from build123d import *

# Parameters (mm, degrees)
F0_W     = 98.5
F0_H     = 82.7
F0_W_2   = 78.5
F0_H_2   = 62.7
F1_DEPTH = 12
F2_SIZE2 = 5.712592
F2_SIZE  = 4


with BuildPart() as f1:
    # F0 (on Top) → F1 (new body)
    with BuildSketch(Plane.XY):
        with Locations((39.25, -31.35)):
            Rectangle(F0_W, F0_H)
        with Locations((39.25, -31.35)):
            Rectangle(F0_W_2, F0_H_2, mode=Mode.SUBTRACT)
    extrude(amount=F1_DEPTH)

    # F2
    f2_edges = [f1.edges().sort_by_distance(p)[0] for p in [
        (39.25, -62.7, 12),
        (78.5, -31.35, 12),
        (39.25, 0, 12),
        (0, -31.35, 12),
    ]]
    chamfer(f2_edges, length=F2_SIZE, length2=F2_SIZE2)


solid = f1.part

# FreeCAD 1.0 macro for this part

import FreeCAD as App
import Part
import Sketcher

V = App.Vector


def edges_at(feature, points):
    """Names of the edges that pass closest to the given points."""
    edges = feature.Shape.Edges
    near = lambda p: min(range(len(edges)), key=lambda i: edges[i].distToShape(Part.Vertex(*p))[0])
    return sorted({f"Edge{near(p) + 1}" for p in points})


def add_polygon(sketch, points):
    """Adds a closed chain of lines whose ends are joined by coincident constraints."""
    first, n = sketch.GeometryCount, len(points)
    for a, b in zip(points, points[1:] + points[:1]):
        sketch.addGeometry(Part.LineSegment(App.Vector(*a, 0), App.Vector(*b, 0)), False)
    for i in range(n):
        sketch.addConstraint(Sketcher.Constraint("Coincident", first + i, 2, first + (i + 1) % n, 1))

doc = App.newDocument("Part")
body = doc.addObject("PartDesign::Body", "Body")

# Sketch on XY plane
sketch1 = doc.addObject("Sketcher::SketchObject", "Sketch")
body.addObject(sketch1)
sketch1.AttachmentSupport = (doc.XY_Plane, [""])
sketch1.MapMode = "FlatFace"
add_polygon(sketch1, [(-10, 10), (-10, -73), (88, -73), (88, 10)])  # lines 0-3
add_polygon(sketch1, [(78, -63), (0, -63), (0, 0), (78, 0)])  # lines 4-7
sketch1.addConstraint(Sketcher.Constraint("Vertical", 0))
sketch1.addConstraint(Sketcher.Constraint("Horizontal", 1))
sketch1.addConstraint(Sketcher.Constraint("Vertical", 2))
sketch1.addConstraint(Sketcher.Constraint("Horizontal", 3))
sketch1.addConstraint(Sketcher.Constraint("Horizontal", 4))
sketch1.addConstraint(Sketcher.Constraint("Vertical", 5))
sketch1.addConstraint(Sketcher.Constraint("Horizontal", 6))
sketch1.addConstraint(Sketcher.Constraint("Vertical", 7))
sketch1.addConstraint(Sketcher.Constraint("Coincident", 5, 2, -1, 1))
sketch1.addConstraint(Sketcher.Constraint("DistanceX", 1, 1, 1, 2, 98.5))
sketch1.addConstraint(Sketcher.Constraint("DistanceX", 4, 2, 4, 1, 78.5))
sketch1.addConstraint(Sketcher.Constraint("DistanceY", 0, 2, 0, 1, 82.7))
sketch1.addConstraint(Sketcher.Constraint("DistanceY", 5, 1, 5, 2, 62.7))
sketch1.addConstraint(Sketcher.Constraint("DistanceX", 0, 2, -1, 1, 10.0))
sketch1.addConstraint(Sketcher.Constraint("DistanceY", -1, 1, 2, 2, 10.0))
pad1 = doc.addObject("PartDesign::Pad", "Pad")
body.addObject(pad1)
pad1.Profile = sketch1
pad1.Length = 12
doc.recompute()

chamfer = doc.addObject("PartDesign::Chamfer", "Chamfer")
body.addObject(chamfer)
chamfer.Base = (pad1, edges_at(pad1, [
    (39.25, -62.7, 12),
    (78.5, -31.35, 12),
    (39.25, 0, 12),
    (0, -31.35, 12),
]))
chamfer.ChamferType = "Two distances"
chamfer.Size = 4
chamfer.Size2 = 5.712592

doc.recompute()
